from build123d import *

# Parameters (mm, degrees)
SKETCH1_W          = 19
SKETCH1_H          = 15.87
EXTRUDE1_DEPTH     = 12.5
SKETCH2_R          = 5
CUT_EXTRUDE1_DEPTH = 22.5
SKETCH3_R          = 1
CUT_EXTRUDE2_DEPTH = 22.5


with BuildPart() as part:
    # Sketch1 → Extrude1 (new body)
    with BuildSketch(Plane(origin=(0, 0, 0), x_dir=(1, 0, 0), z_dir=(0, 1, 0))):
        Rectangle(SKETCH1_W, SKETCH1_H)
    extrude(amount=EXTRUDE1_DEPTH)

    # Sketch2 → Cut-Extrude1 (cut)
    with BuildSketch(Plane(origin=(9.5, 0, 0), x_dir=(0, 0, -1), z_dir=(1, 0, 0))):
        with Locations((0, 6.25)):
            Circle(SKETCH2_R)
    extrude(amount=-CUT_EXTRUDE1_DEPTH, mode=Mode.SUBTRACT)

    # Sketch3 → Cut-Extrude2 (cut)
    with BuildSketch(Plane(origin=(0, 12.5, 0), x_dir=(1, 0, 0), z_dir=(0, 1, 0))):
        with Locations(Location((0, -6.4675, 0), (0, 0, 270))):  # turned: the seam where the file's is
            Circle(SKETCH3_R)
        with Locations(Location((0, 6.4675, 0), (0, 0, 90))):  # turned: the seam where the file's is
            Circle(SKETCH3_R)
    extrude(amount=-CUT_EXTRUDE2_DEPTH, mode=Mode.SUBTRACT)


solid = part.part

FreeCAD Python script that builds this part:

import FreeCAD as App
import Part
import Sketcher

V = App.Vector
Q = App.Units.Quantity


def add_polygon(sketch, points):
    """Adds a closed chain of lines whose ends are joined by coincident constraints."""
    first, n = sketch.GeometryCount, len(points)
    for a, b in zip(points, points[1:] + points[:1]):
        sketch.addGeometry(Part.LineSegment(App.Vector(*a, 0), App.Vector(*b, 0)), False)
    for i in range(n):
        sketch.addConstraint(Sketcher.Constraint("Coincident", first + i, 2, first + (i + 1) % n, 1))

doc = App.newDocument("Part")
body = doc.addObject("PartDesign::Body", "Body")

sketch1 = body.newObject("Sketcher::SketchObject", "Sketch")
sketch1.AttachmentSupport = (doc.getObject("XZ_Plane"), [""])
sketch1.MapMode = "FlatFace"
add_polygon(sketch1, [(-9.5, -7.935), (-9.5, 7.935), (9.5, 7.935), (9.5, -7.935)])
sketch1.addConstraint([
    Sketcher.Constraint("Vertical", 0),
    Sketcher.Constraint("Horizontal", 1),
    Sketcher.Constraint("Vertical", 2),
    Sketcher.Constraint("Horizontal", 3),
    Sketcher.Constraint("Symmetric", 0, 2, 2, 2, -1, 1),
    Sketcher.Constraint("DistanceX", 1, 1, 1, 2, Q("19 mm")),
    Sketcher.Constraint("DistanceY", 0, 1, 0, 2, Q("15.87 mm")),
])
pad1 = body.newObject("PartDesign::Pad", "Pad")
pad1.Profile = sketch1
pad1.Length = 12.5
pad1.Reversed = True

sketch2 = body.newObject("Sketcher::SketchObject", "Sketch001")
sketch2.AttachmentSupport = (doc.getObject("YZ_Plane"), [""])
sketch2.MapMode = "FlatFace"
sketch2.AttachmentOffset = App.Placement(V(0, 0, 9.5), App.Rotation())
sketch2.addGeometry(Part.Circle(V(6.25, 0, 0), V(0, 0, 1), 5), False)
sketch2.addConstraint([
    Sketcher.Constraint("PointOnObject", 0, 3, -1),
    Sketcher.Constraint("Diameter", 0, Q("10 mm")),
    Sketcher.Constraint("DistanceX", -1, 1, 0, 3, Q("6.25 mm")),
])
pocket1 = body.newObject("PartDesign::Pocket", "Pocket")
pocket1.Profile = sketch2
pocket1.Length = 22.5

sketch3 = body.newObject("Sketcher::SketchObject", "Sketch002")
sketch3.AttachmentSupport = (doc.getObject("XZ_Plane"), [""])
sketch3.MapMode = "FlatFace"
sketch3.AttachmentOffset = App.Placement(V(0, 0, -12.5), App.Rotation())
sketch3.addGeometry([
    Part.Circle(V(0, 6.4675, 0), V(0, 0, 1), 1),
    Part.Circle(V(0, -6.4675, 0), V(0, 0, 1), 1),
], False)
sketch3.addConstraint([
    Sketcher.Constraint("Equal", 0, 1),
    Sketcher.Constraint("Symmetric", 0, 3, 1, 3, -1, 1),
    Sketcher.Constraint("PointOnObject", 0, 3, -2),
    Sketcher.Constraint("Diameter", 0, Q("2 mm")),
    Sketcher.Constraint("DistanceY", 1, 3, 0, 3, Q("12.935 mm")),
])
pocket2 = body.newObject("PartDesign::Pocket", "Pocket001")
pocket2.Profile = sketch3
pocket2.Length = 22.5
pocket2.Reversed = True

doc.recompute()
